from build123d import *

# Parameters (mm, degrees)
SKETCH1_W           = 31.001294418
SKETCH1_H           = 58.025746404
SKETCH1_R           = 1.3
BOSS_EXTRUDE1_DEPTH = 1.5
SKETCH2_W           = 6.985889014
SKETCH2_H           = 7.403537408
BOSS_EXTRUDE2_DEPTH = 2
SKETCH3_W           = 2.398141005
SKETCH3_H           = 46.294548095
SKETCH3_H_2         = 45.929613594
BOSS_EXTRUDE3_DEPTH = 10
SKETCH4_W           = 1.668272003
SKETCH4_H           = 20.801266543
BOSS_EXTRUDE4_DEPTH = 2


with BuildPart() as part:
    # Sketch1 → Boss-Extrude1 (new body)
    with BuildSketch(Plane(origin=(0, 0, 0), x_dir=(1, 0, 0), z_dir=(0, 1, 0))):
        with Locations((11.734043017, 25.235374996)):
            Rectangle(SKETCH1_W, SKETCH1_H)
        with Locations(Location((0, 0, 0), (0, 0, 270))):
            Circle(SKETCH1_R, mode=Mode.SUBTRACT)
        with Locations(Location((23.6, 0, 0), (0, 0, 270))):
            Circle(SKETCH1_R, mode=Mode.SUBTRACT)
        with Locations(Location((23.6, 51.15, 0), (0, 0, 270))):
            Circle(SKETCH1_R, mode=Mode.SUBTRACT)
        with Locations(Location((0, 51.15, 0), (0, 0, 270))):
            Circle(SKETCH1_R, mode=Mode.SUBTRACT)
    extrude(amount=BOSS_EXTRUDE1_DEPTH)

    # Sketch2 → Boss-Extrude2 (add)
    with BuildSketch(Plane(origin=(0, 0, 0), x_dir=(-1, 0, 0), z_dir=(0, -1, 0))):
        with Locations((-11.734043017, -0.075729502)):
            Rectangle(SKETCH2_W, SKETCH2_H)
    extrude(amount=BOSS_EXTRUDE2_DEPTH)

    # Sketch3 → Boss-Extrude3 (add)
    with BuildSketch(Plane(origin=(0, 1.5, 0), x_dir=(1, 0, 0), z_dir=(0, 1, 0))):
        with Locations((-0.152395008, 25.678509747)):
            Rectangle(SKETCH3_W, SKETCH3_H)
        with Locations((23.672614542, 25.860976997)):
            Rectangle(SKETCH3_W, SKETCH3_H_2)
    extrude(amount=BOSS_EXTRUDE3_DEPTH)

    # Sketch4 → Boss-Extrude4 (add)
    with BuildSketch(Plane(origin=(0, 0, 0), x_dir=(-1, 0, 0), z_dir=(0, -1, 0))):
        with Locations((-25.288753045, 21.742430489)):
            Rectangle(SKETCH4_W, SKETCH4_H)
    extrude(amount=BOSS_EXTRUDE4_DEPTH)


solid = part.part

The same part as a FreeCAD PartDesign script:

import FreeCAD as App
import Part
import Sketcher

V = App.Vector
Q = App.Units.Quantity

doc = App.newDocument("Part")
body = doc.addObject("PartDesign::Body", "Body")

sketch1 = body.newObject("Sketcher::SketchObject", "Sketch")
sketch1.AttachmentSupport = (doc.getObject("XZ_Plane"), [""])
sketch1.MapMode = "FlatFace"
sketch1.addGeometry(Part.LineSegment(V(-3.8, -54.2, 0), V(-3.8, 3.8, 0)), False)
sketch1.addGeometry(Part.LineSegment(V(-3.8, 3.8, 0), V(27.2, 3.8, 0)), False)
sketch1.addGeometry(Part.LineSegment(V(27.2, 3.8, 0), V(27.2, -54.2, 0)), False)
sketch1.addGeometry(Part.LineSegment(V(27.2, -54.2, 0), V(-3.8, -54.2, 0)), False)
sketch1.addGeometry(Part.Circle(V(0, 0, 0), V(0, 0, 1), 1.3), False)
sketch1.addGeometry(Part.Circle(V(23.6, 0, 0), V(0, 0, 1), 1.3), False)
sketch1.addGeometry(Part.Circle(V(0, -51.1, 0), V(0, 0, 1), 1.3), False)
sketch1.addGeometry(Part.Circle(V(23.6, -51.1, 0), V(0, 0, 1), 1.3), False)
sketch1.addConstraint(Sketcher.Constraint("Coincident", 0, 2, 1, 1))
sketch1.addConstraint(Sketcher.Constraint("Coincident", 1, 2, 2, 1))
sketch1.addConstraint(Sketcher.Constraint("Coincident", 2, 2, 3, 1))
sketch1.addConstraint(Sketcher.Constraint("Coincident", 3, 2, 0, 1))
sketch1.addConstraint(Sketcher.Constraint("Vertical", 0))
sketch1.addConstraint(Sketcher.Constraint("Horizontal", 1))
sketch1.addConstraint(Sketcher.Constraint("Vertical", 2))
sketch1.addConstraint(Sketcher.Constraint("Horizontal", 3))
sketch1.addConstraint(Sketcher.Constraint("Coincident", 4, 3, -1, 1))
sketch1.addConstraint(Sketcher.Constraint("Equal", 4, 5))
sketch1.addConstraint(Sketcher.Constraint("Equal", 5, 6))
sketch1.addConstraint(Sketcher.Constraint("Equal", 6, 7))
sketch1.addConstraint(Sketcher.Constraint("PointOnObject", 5, 3, -1))
sketch1.addConstraint(Sketcher.Constraint("PointOnObject", 6, 3, -2))
sketch1.addConstraint(Sketcher.Constraint("Horizontal", 6, 3, 7, 3))
sketch1.addConstraint(Sketcher.Constraint("Vertical", 5, 3, 7, 3))
sketch1.addConstraint(Sketcher.Constraint("Diameter", 4, Q("2.6 mm")))
sketch1.addConstraint(Sketcher.Constraint("DistanceX", -1, 1, 5, 3, Q("23.6 mm")))
sketch1.addConstraint(Sketcher.Constraint("DistanceY", 6, 3, -1, 1, Q("51.15 mm")))
sketch1.addConstraint(Sketcher.Constraint("DistanceY", -1, 1, 0, 2, Q("3.777498 mm")))
sketch1.addConstraint(Sketcher.Constraint("DistanceX", 1, 1, 1, 2, Q("31.001294 mm")))
sketch1.addConstraint(Sketcher.Constraint("DistanceY", 0, 1, 0, 2, Q("58.025746 mm")))
sketch1.addConstraint(Sketcher.Constraint("DistanceX", -1, 1, 1, 2, Q("27.23469 mm")))
pad1 = body.newObject("PartDesign::Pad", "Pad")
pad1.Profile = sketch1
pad1.Length = 1.5
pad1.Reversed = True

sketch2 = body.newObject("Sketcher::SketchObject", "Sketch001")
sketch2.AttachmentSupport = (doc.getObject("XZ_Plane"), [""])
sketch2.MapMode = "FlatFace"
sketch2.addGeometry(Part.LineSegment(V(15, -4, 0), V(15, 4, 0)), False)
sketch2.addGeometry(Part.LineSegment(V(15, 4, 0), V(8, 4, 0)), False)
sketch2.addGeometry(Part.LineSegment(V(8, 4, 0), V(8, -4, 0)), False)
sketch2.addGeometry(Part.LineSegment(V(8, -4, 0), V(15, -4, 0)), False)
sketch2.addConstraint(Sketcher.Constraint("Coincident", 0, 2, 1, 1))
sketch2.addConstraint(Sketcher.Constraint("Coincident", 1, 2, 2, 1))
sketch2.addConstraint(Sketcher.Constraint("Coincident", 2, 2, 3, 1))
sketch2.addConstraint(Sketcher.Constraint("Coincident", 3, 2, 0, 1))
sketch2.addConstraint(Sketcher.Constraint("Vertical", 0))
sketch2.addConstraint(Sketcher.Constraint("Horizontal", 1))
sketch2.addConstraint(Sketcher.Constraint("Vertical", 2))
sketch2.addConstraint(Sketcher.Constraint("Horizontal", 3))
sketch2.addConstraint(Sketcher.Constraint("DistanceX", 1, 2, 1, 1, Q("6.985889 mm")))
sketch2.addConstraint(Sketcher.Constraint("DistanceY", -1, 1, 0, 2, Q("3.777498 mm")))
sketch2.addConstraint(Sketcher.Constraint("DistanceX", -1, 1, 1, 2, Q("8.241099 mm")))
sketch2.addConstraint(Sketcher.Constraint("DistanceY", 0, 1, 0, 2, Q("7.403537 mm")))
pad2 = body.newObject("PartDesign::Pad", "Pad001")
pad2.Profile = sketch2
pad2.Length = 2

sketch3 = body.newObject("Sketcher::SketchObject", "Sketch002")
sketch3.AttachmentSupport = (doc.getObject("XZ_Plane"), [""])
sketch3.MapMode = "FlatFace"
sketch3.AttachmentOffset = App.Placement(V(0, 0, -1.5), App.Rotation())
sketch3.addGeometry(Part.LineSegment(V(-1.4, -48.8, 0), V(-1.4, -2.5, 0)), False)
sketch3.addGeometry(Part.LineSegment(V(-1.4, -2.5, 0), V(1, -2.5, 0)), False)
sketch3.addGeometry(Part.LineSegment(V(1, -2.5, 0), V(1, -48.8, 0)), False)
sketch3.addGeometry(Part.LineSegment(V(1, -48.8, 0), V(-1.4, -48.8, 0)), False)
sketch3.addGeometry(Part.LineSegment(V(22.5, -48.8, 0), V(22.5, -2.9, 0)), False)
sketch3.addGeometry(Part.LineSegment(V(22.5, -2.9, 0), V(24.9, -2.9, 0)), False)
sketch3.addGeometry(Part.LineSegment(V(24.9, -2.9, 0), V(24.9, -48.8, 0)), False)
sketch3.addGeometry(Part.LineSegment(V(24.9, -48.8, 0), V(22.5, -48.8, 0)), False)
sketch3.addConstraint(Sketcher.Constraint("Coincident", 0, 2, 1, 1))
sketch3.addConstraint(Sketcher.Constraint("Coincident", 1, 2, 2, 1))
sketch3.addConstraint(Sketcher.Constraint("Coincident", 2, 2, 3, 1))
sketch3.addConstraint(Sketcher.Constraint("Coincident", 3, 2, 0, 1))
sketch3.addConstraint(Sketcher.Constraint("Coincident", 4, 2, 5, 1))
sketch3.addConstraint(Sketcher.Constraint("Coincident", 5, 2, 6, 1))
sketch3.addConstraint(Sketcher.Constraint("Coincident", 6, 2, 7, 1))
sketch3.addConstraint(Sketcher.Constraint("Coincident", 7, 2, 4, 1))
sketch3.addConstraint(Sketcher.Constraint("Vertical", 0))
sketch3.addConstraint(Sketcher.Constraint("Horizontal", 1))
sketch3.addConstraint(Sketcher.Constraint("Vertical", 2))
sketch3.addConstraint(Sketcher.Constraint("Horizontal", 3))
sketch3.addConstraint(Sketcher.Constraint("Vertical", 4))
sketch3.addConstraint(Sketcher.Constraint("Horizontal", 5))
sketch3.addConstraint(Sketcher.Constraint("Vertical", 6))
sketch3.addConstraint(Sketcher.Constraint("Horizontal", 7))
sketch3.addConstraint(Sketcher.Constraint("Horizontal", 3, 2, 6, 2))
sketch3.addConstraint(Sketcher.Constraint("Equal", 3, 5))
sketch3.addConstraint(Sketcher.Constraint("DistanceX", 1, 1, 1, 2, Q("2.398141 mm")))
sketch3.addConstraint(Sketcher.Constraint("DistanceY", 0, 1, 0, 2, Q("46.294548 mm")))
sketch3.addConstraint(Sketcher.Constraint("DistanceY", 4, 1, 4, 2, Q("45.929614 mm")))
sketch3.addConstraint(Sketcher.Constraint("DistanceY", 4, 2, -1, 1, Q("2.89617 mm")))
sketch3.addConstraint(Sketcher.Constraint("DistanceX", 1, 2, 4, 2, Q("21.426869 mm")))
sketch3.addConstraint(Sketcher.Constraint("DistanceX", 0, 2, -1, 1, Q("1.351466 mm")))
pad3 = body.newObject("PartDesign::Pad", "Pad002")
pad3.Profile = sketch3
pad3.Length = 10
pad3.Reversed = True

sketch4 = body.newObject("Sketcher::SketchObject", "Sketch003")
sketch4.AttachmentSupport = (doc.getObject("XZ_Plane"), [""])
sketch4.MapMode = "FlatFace"
sketch4.addGeometry(Part.LineSegment(V(26.1, -32.1, 0), V(26.1, -11.3, 0)), False)
sketch4.addGeometry(Part.LineSegment(V(26.1, -11.3, 0), V(24.5, -11.3, 0)), False)
sketch4.addGeometry(Part.LineSegment(V(24.5, -11.3, 0), V(24.5, -32.1, 0)), False)
sketch4.addGeometry(Part.LineSegment(V(24.5, -32.1, 0), V(26.1, -32.1, 0)), False)
sketch4.addConstraint(Sketcher.Constraint("Coincident", 0, 2, 1, 1))
sketch4.addConstraint(Sketcher.Constraint("Coincident", 1, 2, 2, 1))
sketch4.addConstraint(Sketcher.Constraint("Coincident", 2, 2, 3, 1))
sketch4.addConstraint(Sketcher.Constraint("Coincident", 3, 2, 0, 1))
sketch4.addConstraint(Sketcher.Constraint("Vertical", 0))
sketch4.addConstraint(Sketcher.Constraint("Horizontal", 1))
sketch4.addConstraint(Sketcher.Constraint("Vertical", 2))
sketch4.addConstraint(Sketcher.Constraint("Horizontal", 3))
sketch4.addConstraint(Sketcher.Constraint("DistanceX", 1, 2, 1, 1, Q("1.668272 mm")))
sketch4.addConstraint(Sketcher.Constraint("DistanceY", 0, 1, 0, 2, Q("20.801267 mm")))
sketch4.addConstraint(Sketcher.Constraint("DistanceX", -1, 1, 0, 2, Q("26.122889 mm")))
sketch4.addConstraint(Sketcher.Constraint("DistanceY", 0, 2, -1, 1, Q("11.341797 mm")))
pad4 = body.newObject("PartDesign::Pad", "Pad003")
pad4.Profile = sketch4
pad4.Length = 2

doc.recompute()
